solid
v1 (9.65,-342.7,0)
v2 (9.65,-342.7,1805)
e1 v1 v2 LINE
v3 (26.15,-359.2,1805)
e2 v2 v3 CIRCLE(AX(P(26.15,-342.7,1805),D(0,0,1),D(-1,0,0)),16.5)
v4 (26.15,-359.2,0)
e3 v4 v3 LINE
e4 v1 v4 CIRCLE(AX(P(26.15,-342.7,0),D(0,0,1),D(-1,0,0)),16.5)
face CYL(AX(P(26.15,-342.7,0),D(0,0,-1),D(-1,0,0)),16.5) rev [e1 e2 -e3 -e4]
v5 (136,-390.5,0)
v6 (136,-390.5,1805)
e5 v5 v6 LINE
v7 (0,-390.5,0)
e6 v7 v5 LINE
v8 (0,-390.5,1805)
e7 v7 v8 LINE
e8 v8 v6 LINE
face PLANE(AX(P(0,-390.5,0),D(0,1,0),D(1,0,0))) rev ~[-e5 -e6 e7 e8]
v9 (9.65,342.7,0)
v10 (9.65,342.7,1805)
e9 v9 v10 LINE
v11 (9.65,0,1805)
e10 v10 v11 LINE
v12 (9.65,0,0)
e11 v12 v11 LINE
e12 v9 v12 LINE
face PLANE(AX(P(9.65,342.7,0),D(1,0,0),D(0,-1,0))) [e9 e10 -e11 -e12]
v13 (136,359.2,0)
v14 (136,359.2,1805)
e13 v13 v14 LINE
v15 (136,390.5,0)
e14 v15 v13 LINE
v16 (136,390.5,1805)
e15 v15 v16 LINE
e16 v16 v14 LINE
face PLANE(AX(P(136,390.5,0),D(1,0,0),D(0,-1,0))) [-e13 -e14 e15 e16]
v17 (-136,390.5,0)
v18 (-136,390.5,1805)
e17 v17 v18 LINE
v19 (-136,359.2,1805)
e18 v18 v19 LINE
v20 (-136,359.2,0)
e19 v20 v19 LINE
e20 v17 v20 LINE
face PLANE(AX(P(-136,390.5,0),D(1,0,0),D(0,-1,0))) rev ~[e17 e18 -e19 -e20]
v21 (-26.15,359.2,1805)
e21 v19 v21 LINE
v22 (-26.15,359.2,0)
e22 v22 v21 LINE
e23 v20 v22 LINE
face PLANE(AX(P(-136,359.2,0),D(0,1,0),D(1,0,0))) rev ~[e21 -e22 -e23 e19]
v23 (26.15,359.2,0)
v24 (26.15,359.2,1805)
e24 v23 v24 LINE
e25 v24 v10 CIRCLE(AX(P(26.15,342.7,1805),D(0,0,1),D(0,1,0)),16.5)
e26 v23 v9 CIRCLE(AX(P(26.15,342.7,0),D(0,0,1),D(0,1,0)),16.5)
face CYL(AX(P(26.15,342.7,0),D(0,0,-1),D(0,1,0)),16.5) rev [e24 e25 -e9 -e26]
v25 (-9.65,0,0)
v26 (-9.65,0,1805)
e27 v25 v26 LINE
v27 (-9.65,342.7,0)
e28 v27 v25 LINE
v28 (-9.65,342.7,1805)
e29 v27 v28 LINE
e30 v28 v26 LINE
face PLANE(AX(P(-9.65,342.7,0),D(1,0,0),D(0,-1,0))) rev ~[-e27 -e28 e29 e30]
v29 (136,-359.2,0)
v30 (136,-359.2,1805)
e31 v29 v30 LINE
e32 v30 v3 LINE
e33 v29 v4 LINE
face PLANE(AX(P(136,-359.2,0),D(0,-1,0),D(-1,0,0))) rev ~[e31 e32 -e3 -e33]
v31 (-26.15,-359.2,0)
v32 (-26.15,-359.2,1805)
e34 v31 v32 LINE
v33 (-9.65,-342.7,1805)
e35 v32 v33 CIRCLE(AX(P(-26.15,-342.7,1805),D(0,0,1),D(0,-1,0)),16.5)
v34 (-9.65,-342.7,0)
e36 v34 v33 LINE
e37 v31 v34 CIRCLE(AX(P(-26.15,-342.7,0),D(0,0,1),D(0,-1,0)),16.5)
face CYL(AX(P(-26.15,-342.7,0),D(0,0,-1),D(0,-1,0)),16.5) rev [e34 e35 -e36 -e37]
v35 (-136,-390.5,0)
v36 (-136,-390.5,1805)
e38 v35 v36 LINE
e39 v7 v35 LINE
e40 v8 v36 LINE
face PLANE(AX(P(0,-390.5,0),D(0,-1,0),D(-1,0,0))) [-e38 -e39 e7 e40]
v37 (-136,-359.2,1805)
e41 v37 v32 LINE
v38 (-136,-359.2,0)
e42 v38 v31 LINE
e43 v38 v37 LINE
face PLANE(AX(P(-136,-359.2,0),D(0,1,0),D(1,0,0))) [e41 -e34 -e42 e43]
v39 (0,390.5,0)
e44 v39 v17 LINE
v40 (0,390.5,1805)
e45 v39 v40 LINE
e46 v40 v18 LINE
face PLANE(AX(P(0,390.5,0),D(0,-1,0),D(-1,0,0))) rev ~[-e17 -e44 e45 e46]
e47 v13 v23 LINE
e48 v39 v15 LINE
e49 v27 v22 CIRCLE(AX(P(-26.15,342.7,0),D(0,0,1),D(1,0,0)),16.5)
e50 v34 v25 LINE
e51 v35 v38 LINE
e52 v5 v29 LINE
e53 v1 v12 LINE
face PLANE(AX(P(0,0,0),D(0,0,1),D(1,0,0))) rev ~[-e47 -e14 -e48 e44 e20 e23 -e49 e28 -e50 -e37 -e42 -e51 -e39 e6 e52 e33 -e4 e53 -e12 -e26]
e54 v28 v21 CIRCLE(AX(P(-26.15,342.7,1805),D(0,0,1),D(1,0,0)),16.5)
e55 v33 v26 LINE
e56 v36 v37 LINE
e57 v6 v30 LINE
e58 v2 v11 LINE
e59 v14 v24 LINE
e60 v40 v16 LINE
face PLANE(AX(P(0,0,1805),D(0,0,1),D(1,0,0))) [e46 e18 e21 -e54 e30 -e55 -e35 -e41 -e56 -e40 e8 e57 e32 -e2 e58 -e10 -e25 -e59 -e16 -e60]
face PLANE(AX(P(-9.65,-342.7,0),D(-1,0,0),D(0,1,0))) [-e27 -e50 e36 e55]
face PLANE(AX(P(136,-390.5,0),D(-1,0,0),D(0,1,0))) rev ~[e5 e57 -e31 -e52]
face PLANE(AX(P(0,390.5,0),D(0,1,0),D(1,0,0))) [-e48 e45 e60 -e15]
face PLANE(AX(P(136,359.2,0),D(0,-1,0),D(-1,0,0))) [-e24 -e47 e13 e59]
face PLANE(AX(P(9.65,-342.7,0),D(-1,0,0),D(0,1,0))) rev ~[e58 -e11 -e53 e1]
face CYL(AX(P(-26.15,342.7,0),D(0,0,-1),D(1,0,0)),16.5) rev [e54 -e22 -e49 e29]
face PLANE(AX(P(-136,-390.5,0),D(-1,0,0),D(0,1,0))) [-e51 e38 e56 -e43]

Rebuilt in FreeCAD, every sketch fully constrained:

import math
import FreeCAD as App
import Part
import Sketcher
Q = App.Units.Quantity

doc = App.newDocument("Part")
params = doc.addObject("Spreadsheet::Sheet", "Params")
for row, (alias, value) in enumerate([
    ("sketch1_radius", "16.5 mm"),
    ("sketch1_height", "31.3 mm"),
    ("pad1_length", "1805 mm"),
], start=1):
    params.set(f"A{row}", alias)
    params.set(f"B{row}", "=" + value)
    params.setAlias(f"B{row}", alias)

body = doc.addObject("PartDesign::Body", "Body")

sketch1 = body.newObject("Sketcher::SketchObject", "Sketch")
sketch1.AttachmentSupport = (doc.getObject("XY_Plane"), [""])
sketch1.MapMode = "FlatFace"
sketch1.addGeometry(Part.LineSegment(App.Vector(-136, -359, 0), App.Vector(-136, -390, 0)), False)
sketch1.addGeometry(Part.LineSegment(App.Vector(-136, -390, 0), App.Vector(136, -390, 0)), False)
sketch1.addGeometry(Part.LineSegment(App.Vector(136, -390, 0), App.Vector(136, -359, 0)), False)
sketch1.addGeometry(Part.LineSegment(App.Vector(136, -359, 0), App.Vector(26, -359, 0)), False)
sketch1.addGeometry(Part.ArcOfCircle(Part.Circle(App.Vector(26, -343, 0), App.Vector(0, 0, 1), 16), math.radians(180), math.radians(270)), False)
sketch1.addGeometry(Part.LineSegment(App.Vector(10, -343, 0), App.Vector(10, 343, 0)), False)
sketch1.addGeometry(Part.ArcOfCircle(Part.Circle(App.Vector(26, 343, 0), App.Vector(0, 0, 1), 16), math.radians(90), math.radians(180)), False)
sketch1.addGeometry(Part.LineSegment(App.Vector(26, 359, 0), App.Vector(136, 359, 0)), False)
sketch1.addGeometry(Part.LineSegment(App.Vector(136, 359, 0), App.Vector(136, 390, 0)), False)
sketch1.addGeometry(Part.LineSegment(App.Vector(136, 390, 0), App.Vector(-136, 390, 0)), False)
sketch1.addGeometry(Part.LineSegment(App.Vector(-136, 390, 0), App.Vector(-136, 359, 0)), False)
sketch1.addGeometry(Part.LineSegment(App.Vector(-136, 359, 0), App.Vector(-26, 359, 0)), False)
sketch1.addGeometry(Part.ArcOfCircle(Part.Circle(App.Vector(-26, 343, 0), App.Vector(0, 0, 1), 16), math.radians(0), math.radians(90)), False)
sketch1.addGeometry(Part.LineSegment(App.Vector(-10, 343, 0), App.Vector(-10, -343, 0)), False)
sketch1.addGeometry(Part.ArcOfCircle(Part.Circle(App.Vector(-26, -343, 0), App.Vector(0, 0, 1), 16), math.radians(-90), math.radians(0)), False)
sketch1.addGeometry(Part.LineSegment(App.Vector(-26, -359, 0), App.Vector(-136, -359, 0)), False)
sketch1.addConstraint(Sketcher.Constraint("Coincident", 0, 2, 1, 1))
sketch1.addConstraint(Sketcher.Constraint("Coincident", 1, 2, 2, 1))
sketch1.addConstraint(Sketcher.Constraint("Coincident", 2, 2, 3, 1))
sketch1.addConstraint(Sketcher.Constraint("Tangent", 3, 2, 4, 2))
sketch1.addConstraint(Sketcher.Constraint("Tangent", 4, 1, 5, 1))
sketch1.addConstraint(Sketcher.Constraint("Tangent", 5, 2, 6, 2))
sketch1.addConstraint(Sketcher.Constraint("Tangent", 6, 1, 7, 1))
sketch1.addConstraint(Sketcher.Constraint("Coincident", 7, 2, 8, 1))
sketch1.addConstraint(Sketcher.Constraint("Coincident", 8, 2, 9, 1))
sketch1.addConstraint(Sketcher.Constraint("Coincident", 9, 2, 10, 1))
sketch1.addConstraint(Sketcher.Constraint("Coincident", 10, 2, 11, 1))
sketch1.addConstraint(Sketcher.Constraint("Tangent", 11, 2, 12, 2))
sketch1.addConstraint(Sketcher.Constraint("Tangent", 12, 1, 13, 1))
sketch1.addConstraint(Sketcher.Constraint("Tangent", 13, 2, 14, 2))
sketch1.addConstraint(Sketcher.Constraint("Tangent", 14, 1, 15, 1))
sketch1.addConstraint(Sketcher.Constraint("Coincident", 15, 2, 0, 1))
sketch1.addConstraint(Sketcher.Constraint("Vertical", 0))
sketch1.addConstraint(Sketcher.Constraint("Horizontal", 1))
sketch1.addConstraint(Sketcher.Constraint("Vertical", 2))
sketch1.addConstraint(Sketcher.Constraint("Horizontal", 3))
sketch1.addConstraint(Sketcher.Constraint("Vertical", 5))
sketch1.addConstraint(Sketcher.Constraint("Horizontal", 7))
sketch1.addConstraint(Sketcher.Constraint("Vertical", 8))
sketch1.addConstraint(Sketcher.Constraint("Horizontal", 9))
sketch1.addConstraint(Sketcher.Constraint("Vertical", 10))
sketch1.addConstraint(Sketcher.Constraint("Horizontal", 11))
sketch1.addConstraint(Sketcher.Constraint("Vertical", 13))
sketch1.addConstraint(Sketcher.Constraint("Horizontal", 15))
sketch1.addConstraint(Sketcher.Constraint("Equal", 4, 6))
sketch1.addConstraint(Sketcher.Constraint("Equal", 6, 12))
sketch1.addConstraint(Sketcher.Constraint("Equal", 12, 14))
sketch1.addConstraint(Sketcher.Constraint("Symmetric", 4, 3, 12, 3, -1, 1))
sketch1.addConstraint(Sketcher.Constraint("Symmetric", 0, 2, 8, 2, -1, 1))
sketch1.addConstraint(Sketcher.Constraint("Symmetric", 7, 2, 10, 2, -2))
sketch1.addConstraint(Sketcher.Constraint("Symmetric", 2, 2, 15, 2, -2))
sketch1.addConstraint(Sketcher.Constraint("Radius", 4, Q("16.5 mm")))
sketch1.addConstraint(Sketcher.Constraint("DistanceY", 0, 2, 0, 1, Q("31.3 mm")))
sketch1.addConstraint(Sketcher.Constraint("DistanceX", 0, 2, -1, 1, Q("136 mm")))
sketch1.addConstraint(Sketcher.Constraint("DistanceY", 0, 2, -1, 1, Q("390.5 mm")))
sketch1.addConstraint(Sketcher.Constraint("DistanceX", -1, 1, 4, 1, Q("9.65 mm")))
sketch1.setExpression("Constraints[35]", "Params.sketch1_radius")
sketch1.setExpression("Constraints[36]", "Params.sketch1_height")
pad1 = body.newObject("PartDesign::Pad", "Pad")
pad1.Profile = sketch1
pad1.setExpression("Length", "Params.pad1_length")

doc.recompute()
